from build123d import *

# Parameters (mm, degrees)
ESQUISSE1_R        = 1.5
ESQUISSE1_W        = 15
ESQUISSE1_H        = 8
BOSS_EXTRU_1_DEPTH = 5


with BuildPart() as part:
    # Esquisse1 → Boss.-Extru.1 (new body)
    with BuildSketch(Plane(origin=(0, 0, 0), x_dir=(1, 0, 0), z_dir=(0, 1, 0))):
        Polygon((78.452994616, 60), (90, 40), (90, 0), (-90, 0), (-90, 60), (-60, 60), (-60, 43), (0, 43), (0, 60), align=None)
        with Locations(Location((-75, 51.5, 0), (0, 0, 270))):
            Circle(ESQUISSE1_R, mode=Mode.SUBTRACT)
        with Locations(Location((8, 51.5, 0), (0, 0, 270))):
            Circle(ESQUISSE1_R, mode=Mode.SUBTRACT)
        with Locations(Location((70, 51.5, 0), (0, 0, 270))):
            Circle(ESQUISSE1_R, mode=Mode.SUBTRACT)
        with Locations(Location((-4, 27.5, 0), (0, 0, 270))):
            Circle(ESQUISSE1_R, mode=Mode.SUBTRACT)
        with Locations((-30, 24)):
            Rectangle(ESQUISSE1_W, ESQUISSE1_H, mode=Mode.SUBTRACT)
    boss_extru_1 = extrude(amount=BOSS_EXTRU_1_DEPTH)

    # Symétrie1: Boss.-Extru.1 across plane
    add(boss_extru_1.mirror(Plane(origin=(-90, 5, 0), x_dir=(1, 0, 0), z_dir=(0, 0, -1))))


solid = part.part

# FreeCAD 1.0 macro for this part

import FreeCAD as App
import Part
import Sketcher
Q = App.Units.Quantity

doc = App.newDocument("Part")
body = doc.addObject("PartDesign::Body", "Body")

# Sketch on XZ plane
sketch1 = body.newObject("Sketcher::SketchObject", "Sketch")
sketch1.AttachmentSupport = (doc.getObject("XZ_Plane"), [""])
sketch1.MapMode = "FlatFace"
sketch1.addGeometry(Part.LineSegment(App.Vector(90, -40, 0), App.Vector(78.452995, -60, 0)), False)
sketch1.addGeometry(Part.LineSegment(App.Vector(78.452995, -60, 0), App.Vector(0, -60, 0)), False)
sketch1.addGeometry(Part.LineSegment(App.Vector(0, -60, 0), App.Vector(0, -43, 0)), False)
sketch1.addGeometry(Part.LineSegment(App.Vector(0, -43, 0), App.Vector(-60, -43, 0)), False)
sketch1.addGeometry(Part.LineSegment(App.Vector(-60, -43, 0), App.Vector(-60, -60, 0)), False)
sketch1.addGeometry(Part.LineSegment(App.Vector(-60, -60, 0), App.Vector(-90, -60, 0)), False)
sketch1.addGeometry(Part.LineSegment(App.Vector(-90, -60, 0), App.Vector(-90, 0, 0)), False)
sketch1.addGeometry(Part.LineSegment(App.Vector(-90, 0, 0), App.Vector(90, 0, 0)), False)
sketch1.addGeometry(Part.LineSegment(App.Vector(90, 0, 0), App.Vector(90, -40, 0)), False)
sketch1.addGeometry(Part.LineSegment(App.Vector(-37.5, -20, 0), App.Vector(-37.5, -28, 0)), False)
sketch1.addGeometry(Part.LineSegment(App.Vector(-37.5, -28, 0), App.Vector(-22.5, -28, 0)), False)
sketch1.addGeometry(Part.LineSegment(App.Vector(-22.5, -28, 0), App.Vector(-22.5, -20, 0)), False)
sketch1.addGeometry(Part.LineSegment(App.Vector(-22.5, -20, 0), App.Vector(-37.5, -20, 0)), False)
sketch1.addGeometry(Part.Circle(App.Vector(-4, -27.5, 0), App.Vector(0, 0, 1), 1.5), False)
sketch1.addGeometry(Part.Circle(App.Vector(70, -51.5, 0), App.Vector(0, 0, 1), 1.5), False)
sketch1.addGeometry(Part.Circle(App.Vector(8, -51.5, 0), App.Vector(0, 0, 1), 1.5), False)
sketch1.addGeometry(Part.Circle(App.Vector(-75, -51.5, 0), App.Vector(0, 0, 1), 1.5), False)
sketch1.addConstraint(Sketcher.Constraint("Coincident", 0, 2, 1, 1))
sketch1.addConstraint(Sketcher.Constraint("Coincident", 1, 2, 2, 1))
sketch1.addConstraint(Sketcher.Constraint("Coincident", 2, 2, 3, 1))
sketch1.addConstraint(Sketcher.Constraint("Coincident", 3, 2, 4, 1))
sketch1.addConstraint(Sketcher.Constraint("Coincident", 4, 2, 5, 1))
sketch1.addConstraint(Sketcher.Constraint("Coincident", 5, 2, 6, 1))
sketch1.addConstraint(Sketcher.Constraint("Coincident", 6, 2, 7, 1))
sketch1.addConstraint(Sketcher.Constraint("Coincident", 7, 2, 8, 1))
sketch1.addConstraint(Sketcher.Constraint("Coincident", 8, 2, 0, 1))
sketch1.addConstraint(Sketcher.Constraint("Coincident", 9, 2, 10, 1))
sketch1.addConstraint(Sketcher.Constraint("Coincident", 10, 2, 11, 1))
sketch1.addConstraint(Sketcher.Constraint("Coincident", 11, 2, 12, 1))
sketch1.addConstraint(Sketcher.Constraint("Coincident", 12, 2, 9, 1))
sketch1.addConstraint(Sketcher.Constraint("Horizontal", 1))
sketch1.addConstraint(Sketcher.Constraint("Vertical", 2))
sketch1.addConstraint(Sketcher.Constraint("Horizontal", 3))
sketch1.addConstraint(Sketcher.Constraint("Vertical", 4))
sketch1.addConstraint(Sketcher.Constraint("Horizontal", 5))
sketch1.addConstraint(Sketcher.Constraint("Vertical", 6))
sketch1.addConstraint(Sketcher.Constraint("Horizontal", 7))
sketch1.addConstraint(Sketcher.Constraint("Vertical", 8))
sketch1.addConstraint(Sketcher.Constraint("Vertical", 9))
sketch1.addConstraint(Sketcher.Constraint("Horizontal", 10))
sketch1.addConstraint(Sketcher.Constraint("Vertical", 11))
sketch1.addConstraint(Sketcher.Constraint("Horizontal", 12))
sketch1.addConstraint(Sketcher.Constraint("Equal", 13, 14))
sketch1.addConstraint(Sketcher.Constraint("Equal", 14, 15))
sketch1.addConstraint(Sketcher.Constraint("Equal", 15, 16))
sketch1.addConstraint(Sketcher.Constraint("Symmetric", 6, 2, 7, 2, -1, 1))
sketch1.addConstraint(Sketcher.Constraint("PointOnObject", 1, 2, -2))
sketch1.addConstraint(Sketcher.Constraint("Horizontal", 14, 3, 15, 3))
sketch1.addConstraint(Sketcher.Constraint("Horizontal", 15, 3, 16, 3))
sketch1.addConstraint(Sketcher.Constraint("Horizontal", 1, 2, 4, 2))
sketch1.addConstraint(Sketcher.Constraint("Equal", 3, 6))
sketch1.addConstraint(Sketcher.Constraint("Diameter", 13, Q("3 mm")))
sketch1.addConstraint(Sketcher.Constraint("DistanceX", 3, 2, 3, 1, Q("60 mm")))
sketch1.addConstraint(Sketcher.Constraint("DistanceX", 5, 2, 5, 1, Q("30 mm")))
sketch1.addConstraint(Sketcher.Constraint("DistanceX", 10, 1, 10, 2, Q("15 mm")))
sketch1.addConstraint(Sketcher.Constraint("DistanceY", 2, 1, 2, 2, Q("17 mm")))
sketch1.addConstraint(Sketcher.Constraint("DistanceY", 8, 2, 8, 1, Q("40 mm")))
sketch1.addConstraint(Sketcher.Constraint("DistanceY", 9, 2, 9, 1, Q("8 mm")))
sketch1.addConstraint(Sketcher.Constraint("Angle", 0, Q("-120 deg")))
sketch1.addConstraint(Sketcher.Constraint("DistanceX", 13, 3, -1, 1, Q("4 mm")))
sketch1.addConstraint(Sketcher.Constraint("DistanceX", -1, 1, 14, 3, Q("70 mm")))
sketch1.addConstraint(Sketcher.Constraint("DistanceX", -1, 1, 15, 3, Q("8 mm")))
sketch1.addConstraint(Sketcher.Constraint("DistanceX", 16, 3, -1, 1, Q("75 mm")))
sketch1.addConstraint(Sketcher.Constraint("DistanceY", 9, 2, -1, 1, Q("28 mm")))
sketch1.addConstraint(Sketcher.Constraint("DistanceY", 14, 3, 13, 3, Q("24 mm")))
sketch1.addConstraint(Sketcher.Constraint("DistanceY", 13, 3, -1, 1, Q("27.5 mm")))
sketch1.addConstraint(Sketcher.Constraint("DistanceX", 9, 2, -1, 1, Q("37.5 mm")))
pad1 = body.newObject("PartDesign::Pad", "Pad")
pad1.Profile = sketch1
pad1.Length = 5
pad1.Reversed = True
doc.recompute()

mirrored = body.newObject("PartDesign::Mirrored", "Mirrored")
mirrored.Originals = [pad1]
mirrored.MirrorPlane = (doc.getObject("XY_Plane"), [""])
body.Tip = mirrored

doc.recompute()
